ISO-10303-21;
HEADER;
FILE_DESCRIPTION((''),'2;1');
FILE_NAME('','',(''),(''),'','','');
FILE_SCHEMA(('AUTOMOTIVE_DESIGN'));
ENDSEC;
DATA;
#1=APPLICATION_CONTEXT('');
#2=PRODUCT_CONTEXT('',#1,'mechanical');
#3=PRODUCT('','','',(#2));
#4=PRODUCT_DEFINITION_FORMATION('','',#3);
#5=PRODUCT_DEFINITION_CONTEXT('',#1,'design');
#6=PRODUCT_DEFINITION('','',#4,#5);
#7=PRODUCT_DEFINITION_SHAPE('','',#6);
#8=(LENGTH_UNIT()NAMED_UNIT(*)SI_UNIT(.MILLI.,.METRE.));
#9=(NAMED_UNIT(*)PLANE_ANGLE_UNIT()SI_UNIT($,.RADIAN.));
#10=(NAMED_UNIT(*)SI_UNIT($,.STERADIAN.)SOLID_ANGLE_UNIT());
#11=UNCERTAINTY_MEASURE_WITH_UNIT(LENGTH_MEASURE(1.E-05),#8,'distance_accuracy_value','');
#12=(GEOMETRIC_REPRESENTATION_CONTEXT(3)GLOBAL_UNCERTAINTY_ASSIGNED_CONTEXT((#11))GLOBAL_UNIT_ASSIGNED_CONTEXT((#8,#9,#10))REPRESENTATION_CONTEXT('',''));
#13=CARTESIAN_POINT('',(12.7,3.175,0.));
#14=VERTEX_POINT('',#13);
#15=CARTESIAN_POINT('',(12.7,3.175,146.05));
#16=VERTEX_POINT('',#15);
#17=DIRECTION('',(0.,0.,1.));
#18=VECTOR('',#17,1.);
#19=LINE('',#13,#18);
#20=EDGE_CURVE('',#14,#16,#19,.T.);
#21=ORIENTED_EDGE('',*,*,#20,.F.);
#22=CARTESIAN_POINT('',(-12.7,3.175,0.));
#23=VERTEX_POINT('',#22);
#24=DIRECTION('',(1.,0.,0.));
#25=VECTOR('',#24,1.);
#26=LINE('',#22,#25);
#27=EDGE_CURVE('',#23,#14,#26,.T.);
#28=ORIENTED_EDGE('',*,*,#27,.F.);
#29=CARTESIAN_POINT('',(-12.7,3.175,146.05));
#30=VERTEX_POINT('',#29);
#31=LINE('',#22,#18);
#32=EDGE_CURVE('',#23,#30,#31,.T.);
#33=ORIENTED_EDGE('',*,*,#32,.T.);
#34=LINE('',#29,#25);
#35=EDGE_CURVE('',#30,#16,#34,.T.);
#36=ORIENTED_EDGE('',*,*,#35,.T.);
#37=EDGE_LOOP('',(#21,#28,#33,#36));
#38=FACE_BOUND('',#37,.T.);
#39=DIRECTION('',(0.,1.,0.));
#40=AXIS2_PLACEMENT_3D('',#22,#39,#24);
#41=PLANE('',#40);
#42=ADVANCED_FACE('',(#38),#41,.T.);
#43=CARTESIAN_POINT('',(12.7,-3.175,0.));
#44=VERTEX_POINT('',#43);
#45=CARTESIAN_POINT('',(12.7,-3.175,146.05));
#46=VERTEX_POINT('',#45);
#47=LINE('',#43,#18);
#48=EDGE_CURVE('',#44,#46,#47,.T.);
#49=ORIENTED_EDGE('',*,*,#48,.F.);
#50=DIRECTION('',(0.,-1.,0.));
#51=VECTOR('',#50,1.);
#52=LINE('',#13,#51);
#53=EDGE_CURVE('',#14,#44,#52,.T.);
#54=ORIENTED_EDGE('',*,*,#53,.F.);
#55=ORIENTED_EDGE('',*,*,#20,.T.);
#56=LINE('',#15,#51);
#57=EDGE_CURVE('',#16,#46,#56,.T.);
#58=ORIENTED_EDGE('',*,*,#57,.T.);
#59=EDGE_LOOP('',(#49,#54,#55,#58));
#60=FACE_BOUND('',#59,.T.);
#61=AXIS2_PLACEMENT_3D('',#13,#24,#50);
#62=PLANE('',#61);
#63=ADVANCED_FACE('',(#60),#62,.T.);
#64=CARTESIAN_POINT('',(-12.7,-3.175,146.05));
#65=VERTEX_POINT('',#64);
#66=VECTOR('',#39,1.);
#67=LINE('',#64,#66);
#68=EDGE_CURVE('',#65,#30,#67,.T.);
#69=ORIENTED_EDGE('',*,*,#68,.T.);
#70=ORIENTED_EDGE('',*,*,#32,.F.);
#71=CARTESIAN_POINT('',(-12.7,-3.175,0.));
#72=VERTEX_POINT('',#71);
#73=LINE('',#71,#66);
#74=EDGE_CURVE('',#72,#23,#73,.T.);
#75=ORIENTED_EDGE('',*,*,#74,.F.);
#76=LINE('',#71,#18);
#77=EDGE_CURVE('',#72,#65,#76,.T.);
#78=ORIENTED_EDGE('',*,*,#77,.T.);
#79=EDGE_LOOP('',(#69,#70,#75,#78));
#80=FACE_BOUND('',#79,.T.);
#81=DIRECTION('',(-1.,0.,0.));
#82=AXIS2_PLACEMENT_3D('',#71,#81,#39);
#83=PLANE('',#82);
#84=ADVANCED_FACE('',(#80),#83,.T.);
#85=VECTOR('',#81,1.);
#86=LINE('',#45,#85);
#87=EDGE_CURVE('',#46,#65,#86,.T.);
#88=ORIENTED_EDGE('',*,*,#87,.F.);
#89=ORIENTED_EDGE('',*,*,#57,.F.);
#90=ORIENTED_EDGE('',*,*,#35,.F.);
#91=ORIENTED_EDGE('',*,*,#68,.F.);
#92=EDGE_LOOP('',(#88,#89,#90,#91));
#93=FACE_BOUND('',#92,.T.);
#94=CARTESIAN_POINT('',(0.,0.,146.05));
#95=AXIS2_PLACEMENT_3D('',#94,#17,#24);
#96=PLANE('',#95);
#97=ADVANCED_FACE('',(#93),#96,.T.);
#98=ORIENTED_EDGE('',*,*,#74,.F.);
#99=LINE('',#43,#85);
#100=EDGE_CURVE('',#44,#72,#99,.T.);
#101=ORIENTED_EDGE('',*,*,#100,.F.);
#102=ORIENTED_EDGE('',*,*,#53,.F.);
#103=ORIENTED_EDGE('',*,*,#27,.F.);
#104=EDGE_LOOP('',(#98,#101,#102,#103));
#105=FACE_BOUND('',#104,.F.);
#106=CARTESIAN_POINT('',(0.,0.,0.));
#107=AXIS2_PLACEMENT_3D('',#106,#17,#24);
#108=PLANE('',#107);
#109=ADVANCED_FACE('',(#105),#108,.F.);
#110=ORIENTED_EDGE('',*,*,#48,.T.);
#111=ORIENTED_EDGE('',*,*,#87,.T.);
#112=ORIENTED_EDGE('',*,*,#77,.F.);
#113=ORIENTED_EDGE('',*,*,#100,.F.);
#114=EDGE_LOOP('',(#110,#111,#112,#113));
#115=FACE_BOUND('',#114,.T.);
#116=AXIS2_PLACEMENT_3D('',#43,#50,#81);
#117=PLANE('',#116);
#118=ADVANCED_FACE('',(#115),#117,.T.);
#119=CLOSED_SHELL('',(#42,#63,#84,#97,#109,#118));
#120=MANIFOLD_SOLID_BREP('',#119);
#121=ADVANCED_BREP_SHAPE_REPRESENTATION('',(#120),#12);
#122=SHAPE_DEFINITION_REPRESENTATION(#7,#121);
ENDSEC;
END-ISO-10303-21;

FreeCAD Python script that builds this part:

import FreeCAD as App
import Part
import Sketcher
Q = App.Units.Quantity

doc = App.newDocument("Part")
body = doc.addObject("PartDesign::Body", "Body")

# Sketch on XY plane
sketch1 = body.newObject("Sketcher::SketchObject", "Sketch")
sketch1.AttachmentSupport = (doc.getObject("XY_Plane"), [""])
sketch1.MapMode = "FlatFace"
sketch1.addGeometry([
    Part.LineSegment(App.Vector(-12.7, -3.175, 0), App.Vector(12.7, -3.175, 0)),
    Part.LineSegment(App.Vector(12.7, -3.175, 0), App.Vector(12.7, 3.175, 0)),
    Part.LineSegment(App.Vector(12.7, 3.175, 0), App.Vector(-12.7, 3.175, 0)),
    Part.LineSegment(App.Vector(-12.7, 3.175, 0), App.Vector(-12.7, -3.175, 0)),
], False)
sketch1.addConstraint([
    Sketcher.Constraint("Coincident", 0, 2, 1, 1),
    Sketcher.Constraint("Coincident", 1, 2, 2, 1),
    Sketcher.Constraint("Coincident", 2, 2, 3, 1),
    Sketcher.Constraint("Coincident", 3, 2, 0, 1),
    Sketcher.Constraint("Horizontal", 0),
    Sketcher.Constraint("Vertical", 1),
    Sketcher.Constraint("Horizontal", 2),
    Sketcher.Constraint("Vertical", 3),
    Sketcher.Constraint("Symmetric", 0, 2, 2, 2, -1, 1),
    Sketcher.Constraint("DistanceX", 0, 1, 0, 2, Q("1 in")),
    Sketcher.Constraint("DistanceY", 1, 1, 1, 2, Q("0.25 in")),
])
pad1 = body.newObject("PartDesign::Pad", "Pad")
pad1.Profile = sketch1
pad1.Length = Q("5.75 in")

doc.recompute()
